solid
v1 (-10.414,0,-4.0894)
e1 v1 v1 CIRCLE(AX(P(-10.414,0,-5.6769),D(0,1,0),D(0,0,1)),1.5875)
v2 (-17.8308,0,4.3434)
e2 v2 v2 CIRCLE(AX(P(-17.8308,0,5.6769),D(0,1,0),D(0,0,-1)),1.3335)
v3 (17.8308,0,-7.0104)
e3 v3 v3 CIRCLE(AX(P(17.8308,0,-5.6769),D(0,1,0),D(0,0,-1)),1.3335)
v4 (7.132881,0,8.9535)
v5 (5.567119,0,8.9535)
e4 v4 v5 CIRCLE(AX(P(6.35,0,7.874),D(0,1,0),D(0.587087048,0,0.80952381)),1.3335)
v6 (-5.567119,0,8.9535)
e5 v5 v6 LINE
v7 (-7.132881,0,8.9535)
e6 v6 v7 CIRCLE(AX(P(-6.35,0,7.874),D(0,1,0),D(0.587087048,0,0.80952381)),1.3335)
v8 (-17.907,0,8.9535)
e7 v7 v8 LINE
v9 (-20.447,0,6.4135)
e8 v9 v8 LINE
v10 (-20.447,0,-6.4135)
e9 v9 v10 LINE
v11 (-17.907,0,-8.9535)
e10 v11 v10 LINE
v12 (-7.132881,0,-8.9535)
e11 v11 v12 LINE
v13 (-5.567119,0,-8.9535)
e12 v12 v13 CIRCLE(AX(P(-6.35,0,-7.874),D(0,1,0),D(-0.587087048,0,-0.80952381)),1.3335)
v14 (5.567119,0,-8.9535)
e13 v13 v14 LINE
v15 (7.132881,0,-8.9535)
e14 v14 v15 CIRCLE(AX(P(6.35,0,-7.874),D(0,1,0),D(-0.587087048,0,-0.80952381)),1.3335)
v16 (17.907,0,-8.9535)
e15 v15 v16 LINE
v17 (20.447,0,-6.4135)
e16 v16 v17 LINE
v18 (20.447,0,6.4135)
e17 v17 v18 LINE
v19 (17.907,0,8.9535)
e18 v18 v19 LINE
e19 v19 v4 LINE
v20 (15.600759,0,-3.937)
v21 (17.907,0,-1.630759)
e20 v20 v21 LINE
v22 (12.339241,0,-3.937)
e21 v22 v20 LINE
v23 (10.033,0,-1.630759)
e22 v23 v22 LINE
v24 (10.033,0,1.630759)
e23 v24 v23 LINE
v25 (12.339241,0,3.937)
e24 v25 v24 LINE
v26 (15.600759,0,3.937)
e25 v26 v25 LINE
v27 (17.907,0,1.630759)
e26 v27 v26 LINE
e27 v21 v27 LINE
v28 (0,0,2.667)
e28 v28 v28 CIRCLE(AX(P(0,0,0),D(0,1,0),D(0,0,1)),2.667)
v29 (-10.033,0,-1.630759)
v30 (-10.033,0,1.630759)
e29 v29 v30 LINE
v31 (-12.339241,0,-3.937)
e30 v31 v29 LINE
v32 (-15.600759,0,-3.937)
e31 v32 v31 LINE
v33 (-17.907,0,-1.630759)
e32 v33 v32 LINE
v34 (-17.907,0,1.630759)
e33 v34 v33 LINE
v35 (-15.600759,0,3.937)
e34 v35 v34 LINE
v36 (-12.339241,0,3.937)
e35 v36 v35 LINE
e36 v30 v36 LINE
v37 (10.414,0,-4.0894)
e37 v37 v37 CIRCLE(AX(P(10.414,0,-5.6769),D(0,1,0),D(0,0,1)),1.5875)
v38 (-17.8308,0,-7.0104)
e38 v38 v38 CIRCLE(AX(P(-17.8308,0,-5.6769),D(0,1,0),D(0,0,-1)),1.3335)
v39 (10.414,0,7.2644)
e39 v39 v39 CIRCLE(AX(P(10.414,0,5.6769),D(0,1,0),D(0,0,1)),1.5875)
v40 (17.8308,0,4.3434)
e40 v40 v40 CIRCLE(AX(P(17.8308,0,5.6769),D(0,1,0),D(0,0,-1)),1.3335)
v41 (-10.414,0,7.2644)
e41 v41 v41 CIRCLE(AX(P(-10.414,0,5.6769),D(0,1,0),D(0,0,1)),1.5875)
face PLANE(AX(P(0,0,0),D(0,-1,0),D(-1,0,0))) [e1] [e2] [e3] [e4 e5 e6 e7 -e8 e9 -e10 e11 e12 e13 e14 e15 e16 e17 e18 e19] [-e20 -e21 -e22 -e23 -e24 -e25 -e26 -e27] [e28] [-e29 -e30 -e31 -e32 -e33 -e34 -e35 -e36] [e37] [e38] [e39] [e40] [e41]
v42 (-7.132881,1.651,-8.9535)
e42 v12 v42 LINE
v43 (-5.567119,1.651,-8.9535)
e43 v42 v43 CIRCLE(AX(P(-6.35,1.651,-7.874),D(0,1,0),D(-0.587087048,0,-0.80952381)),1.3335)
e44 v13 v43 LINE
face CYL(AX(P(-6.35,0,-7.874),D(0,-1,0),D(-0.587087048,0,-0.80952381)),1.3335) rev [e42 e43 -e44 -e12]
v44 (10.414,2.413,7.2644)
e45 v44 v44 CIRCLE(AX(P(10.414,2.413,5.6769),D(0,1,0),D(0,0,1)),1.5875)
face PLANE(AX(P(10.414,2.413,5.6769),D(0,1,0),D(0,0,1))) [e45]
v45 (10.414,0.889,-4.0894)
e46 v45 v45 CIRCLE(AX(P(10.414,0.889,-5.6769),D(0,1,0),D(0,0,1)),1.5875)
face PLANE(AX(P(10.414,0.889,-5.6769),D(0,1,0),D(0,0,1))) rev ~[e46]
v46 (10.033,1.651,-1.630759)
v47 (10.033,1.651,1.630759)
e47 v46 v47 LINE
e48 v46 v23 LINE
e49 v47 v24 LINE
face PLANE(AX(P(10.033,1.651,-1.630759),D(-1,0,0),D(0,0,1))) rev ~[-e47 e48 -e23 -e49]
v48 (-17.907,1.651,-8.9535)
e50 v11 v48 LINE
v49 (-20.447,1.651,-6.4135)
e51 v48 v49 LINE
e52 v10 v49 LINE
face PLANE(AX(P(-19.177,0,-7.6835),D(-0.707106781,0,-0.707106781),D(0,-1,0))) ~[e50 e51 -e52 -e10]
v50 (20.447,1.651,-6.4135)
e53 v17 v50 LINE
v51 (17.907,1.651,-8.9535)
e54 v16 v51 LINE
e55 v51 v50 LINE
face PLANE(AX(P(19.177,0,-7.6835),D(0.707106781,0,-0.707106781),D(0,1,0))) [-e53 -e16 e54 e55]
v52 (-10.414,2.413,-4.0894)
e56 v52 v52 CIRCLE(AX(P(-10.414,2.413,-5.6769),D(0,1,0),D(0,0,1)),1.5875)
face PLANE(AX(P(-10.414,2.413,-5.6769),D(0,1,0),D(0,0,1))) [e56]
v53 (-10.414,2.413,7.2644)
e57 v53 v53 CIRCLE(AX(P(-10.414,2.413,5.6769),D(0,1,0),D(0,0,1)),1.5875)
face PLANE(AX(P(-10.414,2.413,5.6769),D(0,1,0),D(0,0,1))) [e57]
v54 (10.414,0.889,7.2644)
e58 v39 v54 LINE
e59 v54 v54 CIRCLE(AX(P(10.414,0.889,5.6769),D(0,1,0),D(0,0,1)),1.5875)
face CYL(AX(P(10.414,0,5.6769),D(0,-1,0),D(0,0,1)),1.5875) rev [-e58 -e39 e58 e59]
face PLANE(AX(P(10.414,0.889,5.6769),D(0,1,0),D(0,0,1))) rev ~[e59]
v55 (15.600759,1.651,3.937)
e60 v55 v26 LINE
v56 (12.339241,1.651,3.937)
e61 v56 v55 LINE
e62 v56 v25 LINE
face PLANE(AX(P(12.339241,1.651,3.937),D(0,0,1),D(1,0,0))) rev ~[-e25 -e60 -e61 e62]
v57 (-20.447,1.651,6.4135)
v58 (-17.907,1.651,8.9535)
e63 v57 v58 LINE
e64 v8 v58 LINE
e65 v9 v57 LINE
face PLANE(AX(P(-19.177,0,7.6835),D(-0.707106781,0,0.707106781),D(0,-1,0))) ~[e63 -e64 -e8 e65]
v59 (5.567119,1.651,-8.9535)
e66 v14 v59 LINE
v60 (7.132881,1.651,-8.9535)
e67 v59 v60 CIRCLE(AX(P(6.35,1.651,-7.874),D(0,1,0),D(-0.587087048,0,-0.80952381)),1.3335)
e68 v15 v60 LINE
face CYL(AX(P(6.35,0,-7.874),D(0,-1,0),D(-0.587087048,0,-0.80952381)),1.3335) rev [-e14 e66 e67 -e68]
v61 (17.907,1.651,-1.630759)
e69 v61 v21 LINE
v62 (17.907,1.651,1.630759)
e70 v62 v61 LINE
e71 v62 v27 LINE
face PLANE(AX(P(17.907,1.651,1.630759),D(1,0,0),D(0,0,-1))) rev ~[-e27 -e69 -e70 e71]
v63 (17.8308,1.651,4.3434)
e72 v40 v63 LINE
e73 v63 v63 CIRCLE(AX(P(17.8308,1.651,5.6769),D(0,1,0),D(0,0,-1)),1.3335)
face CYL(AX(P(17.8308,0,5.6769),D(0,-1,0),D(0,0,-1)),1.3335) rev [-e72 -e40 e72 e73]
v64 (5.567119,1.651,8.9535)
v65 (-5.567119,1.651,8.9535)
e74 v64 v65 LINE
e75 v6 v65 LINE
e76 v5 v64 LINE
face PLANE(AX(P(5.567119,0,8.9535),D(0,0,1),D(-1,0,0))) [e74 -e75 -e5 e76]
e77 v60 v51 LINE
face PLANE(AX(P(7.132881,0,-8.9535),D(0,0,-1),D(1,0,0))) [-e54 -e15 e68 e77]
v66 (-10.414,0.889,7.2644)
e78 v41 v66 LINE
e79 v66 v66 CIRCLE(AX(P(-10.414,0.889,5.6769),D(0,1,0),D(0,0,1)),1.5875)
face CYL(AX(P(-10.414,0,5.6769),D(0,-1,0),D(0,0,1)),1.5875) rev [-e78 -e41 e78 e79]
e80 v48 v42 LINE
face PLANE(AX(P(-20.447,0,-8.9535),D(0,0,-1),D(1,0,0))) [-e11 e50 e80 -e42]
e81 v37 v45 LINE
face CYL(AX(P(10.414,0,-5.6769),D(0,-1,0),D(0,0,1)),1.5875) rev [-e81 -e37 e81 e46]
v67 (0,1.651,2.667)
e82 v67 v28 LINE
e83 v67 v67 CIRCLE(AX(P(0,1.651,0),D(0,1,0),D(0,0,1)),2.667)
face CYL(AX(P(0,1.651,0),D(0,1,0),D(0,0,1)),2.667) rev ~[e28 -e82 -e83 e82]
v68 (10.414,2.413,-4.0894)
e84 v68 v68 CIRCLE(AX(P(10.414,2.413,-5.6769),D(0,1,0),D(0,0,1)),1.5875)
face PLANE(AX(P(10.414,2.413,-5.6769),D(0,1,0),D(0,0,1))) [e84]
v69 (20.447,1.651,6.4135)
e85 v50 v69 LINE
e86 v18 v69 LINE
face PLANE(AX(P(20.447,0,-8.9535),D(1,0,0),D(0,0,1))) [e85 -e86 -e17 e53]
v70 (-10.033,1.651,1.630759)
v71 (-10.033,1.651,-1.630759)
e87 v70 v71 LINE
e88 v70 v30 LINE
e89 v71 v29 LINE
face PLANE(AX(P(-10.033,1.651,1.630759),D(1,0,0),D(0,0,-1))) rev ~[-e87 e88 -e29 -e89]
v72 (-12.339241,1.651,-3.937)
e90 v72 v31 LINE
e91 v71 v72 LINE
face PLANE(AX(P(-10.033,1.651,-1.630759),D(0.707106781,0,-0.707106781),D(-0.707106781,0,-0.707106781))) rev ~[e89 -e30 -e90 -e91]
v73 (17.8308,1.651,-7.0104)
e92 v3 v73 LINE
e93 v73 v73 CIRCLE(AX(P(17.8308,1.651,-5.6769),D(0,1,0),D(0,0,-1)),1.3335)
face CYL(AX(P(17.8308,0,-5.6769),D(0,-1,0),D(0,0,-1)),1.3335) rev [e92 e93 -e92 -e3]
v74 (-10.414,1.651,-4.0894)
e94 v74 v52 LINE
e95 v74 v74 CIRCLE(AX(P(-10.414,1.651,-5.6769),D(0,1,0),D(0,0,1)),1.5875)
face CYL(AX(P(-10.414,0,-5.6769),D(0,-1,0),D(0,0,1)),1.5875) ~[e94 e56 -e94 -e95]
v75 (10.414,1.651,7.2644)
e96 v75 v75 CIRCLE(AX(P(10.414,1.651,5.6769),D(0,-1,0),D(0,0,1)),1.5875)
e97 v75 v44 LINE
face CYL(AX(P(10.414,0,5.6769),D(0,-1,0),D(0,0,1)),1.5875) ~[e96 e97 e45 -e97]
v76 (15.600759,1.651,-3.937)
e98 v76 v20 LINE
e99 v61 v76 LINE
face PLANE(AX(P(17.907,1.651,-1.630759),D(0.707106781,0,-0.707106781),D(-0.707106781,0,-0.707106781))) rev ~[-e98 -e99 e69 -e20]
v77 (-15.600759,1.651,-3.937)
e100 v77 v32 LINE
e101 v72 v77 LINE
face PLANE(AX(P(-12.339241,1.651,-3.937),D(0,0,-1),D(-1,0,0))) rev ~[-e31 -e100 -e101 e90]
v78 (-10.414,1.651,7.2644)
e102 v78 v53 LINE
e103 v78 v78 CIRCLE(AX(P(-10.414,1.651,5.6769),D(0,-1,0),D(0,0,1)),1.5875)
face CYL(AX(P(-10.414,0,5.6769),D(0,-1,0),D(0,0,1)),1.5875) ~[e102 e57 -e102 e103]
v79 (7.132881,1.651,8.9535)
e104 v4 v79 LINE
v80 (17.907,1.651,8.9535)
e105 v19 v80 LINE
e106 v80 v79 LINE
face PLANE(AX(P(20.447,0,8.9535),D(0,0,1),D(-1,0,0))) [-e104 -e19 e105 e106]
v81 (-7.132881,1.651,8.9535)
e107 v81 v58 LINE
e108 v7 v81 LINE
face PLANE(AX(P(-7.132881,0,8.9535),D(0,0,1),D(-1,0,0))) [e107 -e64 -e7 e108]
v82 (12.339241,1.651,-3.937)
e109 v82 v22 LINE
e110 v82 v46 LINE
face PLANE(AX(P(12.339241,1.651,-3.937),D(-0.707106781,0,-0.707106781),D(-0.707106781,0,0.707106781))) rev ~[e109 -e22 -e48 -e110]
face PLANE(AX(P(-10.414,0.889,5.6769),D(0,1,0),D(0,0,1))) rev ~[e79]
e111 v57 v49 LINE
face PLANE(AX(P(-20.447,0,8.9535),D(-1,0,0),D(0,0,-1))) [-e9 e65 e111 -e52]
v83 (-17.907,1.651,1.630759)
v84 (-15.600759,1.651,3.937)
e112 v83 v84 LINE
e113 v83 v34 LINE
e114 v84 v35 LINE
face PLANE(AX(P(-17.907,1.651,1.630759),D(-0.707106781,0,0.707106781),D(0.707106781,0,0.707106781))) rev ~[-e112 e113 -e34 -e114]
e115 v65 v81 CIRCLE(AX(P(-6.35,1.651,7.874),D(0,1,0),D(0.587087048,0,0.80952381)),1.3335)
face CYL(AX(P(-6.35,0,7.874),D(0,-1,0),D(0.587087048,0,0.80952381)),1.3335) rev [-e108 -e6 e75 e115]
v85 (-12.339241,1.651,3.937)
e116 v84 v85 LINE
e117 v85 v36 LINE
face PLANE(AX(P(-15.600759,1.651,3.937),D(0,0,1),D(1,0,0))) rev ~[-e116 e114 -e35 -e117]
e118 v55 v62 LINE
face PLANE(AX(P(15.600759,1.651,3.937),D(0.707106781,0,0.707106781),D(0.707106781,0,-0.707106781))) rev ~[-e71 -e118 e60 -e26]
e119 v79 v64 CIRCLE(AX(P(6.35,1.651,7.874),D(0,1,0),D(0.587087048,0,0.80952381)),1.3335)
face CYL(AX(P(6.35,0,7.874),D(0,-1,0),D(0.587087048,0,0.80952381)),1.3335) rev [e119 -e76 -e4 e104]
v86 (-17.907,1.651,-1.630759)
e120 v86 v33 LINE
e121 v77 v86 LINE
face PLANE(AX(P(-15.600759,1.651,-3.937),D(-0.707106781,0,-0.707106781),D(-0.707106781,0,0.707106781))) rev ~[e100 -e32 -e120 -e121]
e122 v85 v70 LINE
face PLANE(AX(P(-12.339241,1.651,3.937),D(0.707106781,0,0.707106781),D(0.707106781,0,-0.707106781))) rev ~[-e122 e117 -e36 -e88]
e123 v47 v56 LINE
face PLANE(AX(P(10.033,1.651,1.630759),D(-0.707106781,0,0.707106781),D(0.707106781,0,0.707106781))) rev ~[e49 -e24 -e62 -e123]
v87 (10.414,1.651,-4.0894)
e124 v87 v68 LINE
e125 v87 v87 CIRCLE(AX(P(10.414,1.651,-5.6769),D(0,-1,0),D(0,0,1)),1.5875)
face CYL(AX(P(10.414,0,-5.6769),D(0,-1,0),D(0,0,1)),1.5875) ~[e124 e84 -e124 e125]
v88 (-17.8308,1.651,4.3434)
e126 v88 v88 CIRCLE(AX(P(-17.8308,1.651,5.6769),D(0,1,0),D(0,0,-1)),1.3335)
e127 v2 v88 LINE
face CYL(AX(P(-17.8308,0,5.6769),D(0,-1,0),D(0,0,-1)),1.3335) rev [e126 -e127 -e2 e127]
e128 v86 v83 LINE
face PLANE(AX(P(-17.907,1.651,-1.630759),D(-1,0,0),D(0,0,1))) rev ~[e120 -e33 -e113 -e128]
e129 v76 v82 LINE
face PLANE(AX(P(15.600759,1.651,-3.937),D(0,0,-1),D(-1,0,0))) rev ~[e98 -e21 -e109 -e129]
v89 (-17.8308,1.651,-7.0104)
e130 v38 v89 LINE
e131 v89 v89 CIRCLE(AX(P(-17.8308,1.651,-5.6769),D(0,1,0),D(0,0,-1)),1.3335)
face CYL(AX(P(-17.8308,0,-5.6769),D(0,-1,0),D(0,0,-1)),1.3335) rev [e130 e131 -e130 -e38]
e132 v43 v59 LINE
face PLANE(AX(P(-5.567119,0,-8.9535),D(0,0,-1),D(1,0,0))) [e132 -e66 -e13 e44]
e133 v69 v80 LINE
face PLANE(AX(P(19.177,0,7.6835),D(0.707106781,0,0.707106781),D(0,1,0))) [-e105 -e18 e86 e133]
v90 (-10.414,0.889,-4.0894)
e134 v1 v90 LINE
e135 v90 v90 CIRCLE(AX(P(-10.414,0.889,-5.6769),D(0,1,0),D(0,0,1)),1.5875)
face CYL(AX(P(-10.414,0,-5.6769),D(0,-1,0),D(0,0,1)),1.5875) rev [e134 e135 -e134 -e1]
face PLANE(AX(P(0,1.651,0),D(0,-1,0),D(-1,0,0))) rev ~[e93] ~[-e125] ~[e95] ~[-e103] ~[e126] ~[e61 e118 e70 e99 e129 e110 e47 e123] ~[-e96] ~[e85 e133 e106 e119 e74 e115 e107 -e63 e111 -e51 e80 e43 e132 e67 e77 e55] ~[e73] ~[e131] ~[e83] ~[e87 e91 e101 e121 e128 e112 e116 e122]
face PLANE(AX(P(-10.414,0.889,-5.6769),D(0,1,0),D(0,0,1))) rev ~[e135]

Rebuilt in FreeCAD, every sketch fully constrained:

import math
import FreeCAD as App
import Part
import Sketcher
Q = App.Units.Quantity


def edges_at(feature, points):
    """Names of the edges that pass closest to the given points."""
    edges = feature.Shape.Edges
    near = lambda p: min(range(len(edges)), key=lambda i: edges[i].distToShape(Part.Vertex(*p))[0])
    return sorted({f"Edge{near(p) + 1}" for p in points})


def add_polygon(sketch, points):
    """Adds a closed chain of lines whose ends are joined by coincident constraints."""
    first, n = sketch.GeometryCount, len(points)
    for a, b in zip(points, points[1:] + points[:1]):
        sketch.addGeometry(Part.LineSegment(App.Vector(*a, 0), App.Vector(*b, 0)), False)
    for i in range(n):
        sketch.addConstraint(Sketcher.Constraint("Coincident", first + i, 2, first + (i + 1) % n, 1))

doc = App.newDocument("Part")
body = doc.addObject("PartDesign::Body", "Body")

sketch1 = body.newObject("Sketcher::SketchObject", "Sketch")
sketch1.AttachmentSupport = (doc.getObject("XZ_Plane"), [""])
sketch1.MapMode = "FlatFace"
sketch1.addGeometry([
    Part.LineSegment(App.Vector(5.6, -9, 0), App.Vector(-5.6, -9, 0)),
    Part.ArcOfCircle(Part.Circle(App.Vector(-6.3, -7.9, 0), App.Vector(0, 0, 1), 1.3), math.radians(-54), math.radians(234)),
    Part.LineSegment(App.Vector(-7.1, -9, 0), App.Vector(-20.4, -9, 0)),
    Part.LineSegment(App.Vector(-20.4, -9, 0), App.Vector(-20.4, 9, 0)),
    Part.LineSegment(App.Vector(-20.4, 9, 0), App.Vector(-7.1, 9, 0)),
    Part.ArcOfCircle(Part.Circle(App.Vector(-6.3, 7.9, 0), App.Vector(0, 0, 1), 1.3), math.radians(126), math.radians(414)),
    Part.LineSegment(App.Vector(-5.6, 9, 0), App.Vector(5.6, 9, 0)),
    Part.ArcOfCircle(Part.Circle(App.Vector(6.3, 7.9, 0), App.Vector(0, 0, 1), 1.3), math.radians(126), math.radians(414)),
    Part.LineSegment(App.Vector(7.1, 9, 0), App.Vector(20.4, 9, 0)),
    Part.LineSegment(App.Vector(20.4, 9, 0), App.Vector(20.4, -9, 0)),
    Part.LineSegment(App.Vector(20.4, -9, 0), App.Vector(7.1, -9, 0)),
    Part.ArcOfCircle(Part.Circle(App.Vector(6.3, -7.9, 0), App.Vector(0, 0, 1), 1.3), math.radians(-54), math.radians(234)),
    Part.Circle(App.Vector(17.8, 5.7, 0), App.Vector(0, 0, 1), 1.3),
    Part.Circle(App.Vector(10.4, 5.7, 0), App.Vector(0, 0, 1), 1.6),
    Part.Circle(App.Vector(-10.4, 5.7, 0), App.Vector(0, 0, 1), 1.6),
    Part.Circle(App.Vector(-17.8, 5.7, 0), App.Vector(0, 0, 1), 1.3),
    Part.Circle(App.Vector(17.8, -5.7, 0), App.Vector(0, 0, 1), 1.3),
    Part.Circle(App.Vector(10.4, -5.7, 0), App.Vector(0, 0, 1), 1.6),
    Part.Circle(App.Vector(-10.4, -5.7, 0), App.Vector(0, 0, 1), 1.6),
    Part.Circle(App.Vector(-17.8, -5.7, 0), App.Vector(0, 0, 1), 1.3),
], False)
sketch1.addConstraint([
    Sketcher.Constraint("Coincident", 0, 2, 1, 1),
    Sketcher.Constraint("Coincident", 1, 2, 2, 1),
    Sketcher.Constraint("Coincident", 2, 2, 3, 1),
    Sketcher.Constraint("Coincident", 3, 2, 4, 1),
    Sketcher.Constraint("Coincident", 4, 2, 5, 1),
    Sketcher.Constraint("Coincident", 5, 2, 6, 1),
    Sketcher.Constraint("Coincident", 6, 2, 7, 1),
    Sketcher.Constraint("Coincident", 7, 2, 8, 1),
    Sketcher.Constraint("Coincident", 8, 2, 9, 1),
    Sketcher.Constraint("Coincident", 9, 2, 10, 1),
    Sketcher.Constraint("Coincident", 10, 2, 11, 1),
    Sketcher.Constraint("Coincident", 11, 2, 0, 1),
    Sketcher.Constraint("Horizontal", 0),
    Sketcher.Constraint("Horizontal", 2),
    Sketcher.Constraint("Vertical", 3),
    Sketcher.Constraint("Horizontal", 4),
    Sketcher.Constraint("Horizontal", 6),
    Sketcher.Constraint("Horizontal", 8),
    Sketcher.Constraint("Vertical", 9),
    Sketcher.Constraint("Horizontal", 10),
    Sketcher.Constraint("Equal", 1, 5),
    Sketcher.Constraint("Equal", 5, 7),
    Sketcher.Constraint("Equal", 7, 11),
    Sketcher.Constraint("Equal", 11, 12),
    Sketcher.Constraint("Equal", 13, 14),
    Sketcher.Constraint("Equal", 12, 15),
    Sketcher.Constraint("Equal", 15, 16),
    Sketcher.Constraint("Equal", 14, 17),
    Sketcher.Constraint("Equal", 17, 18),
    Sketcher.Constraint("Equal", 16, 19),
    Sketcher.Constraint("Symmetric", 1, 3, 7, 3, -1, 1),
    Sketcher.Constraint("Symmetric", 5, 3, 11, 3, -1, 1),
    Sketcher.Constraint("Symmetric", 15, 3, 16, 3, -1, 1),
    Sketcher.Constraint("Symmetric", 14, 3, 17, 3, -1, 1),
    Sketcher.Constraint("Symmetric", 13, 3, 18, 3, -1, 1),
    Sketcher.Constraint("Symmetric", 12, 3, 19, 3, -1, 1),
    Sketcher.Constraint("Symmetric", 2, 2, 8, 2, -1, 1),
    Sketcher.Constraint("Symmetric", 5, 3, 7, 3, -2),
    Sketcher.Constraint("Symmetric", 13, 3, 14, 3, -2),
    Sketcher.Constraint("Symmetric", 12, 3, 15, 3, -2),
    Sketcher.Constraint("Horizontal", 12, 3, 13, 3),
    Sketcher.Constraint("Horizontal", 0, 2, 1, 2),
    Sketcher.Constraint("Horizontal", 4, 2, 5, 2),
    Sketcher.Constraint("Horizontal", 6, 2, 7, 2),
    Sketcher.Constraint("Horizontal", 2, 2, 9, 2),
    Sketcher.Constraint("Diameter", 12, Q("0.105 in")),
    Sketcher.Constraint("Diameter", 13, Q("0.125 in")),
    Sketcher.Constraint("DistanceX", 5, 3, 7, 3, Q("0.5 in")),
    Sketcher.Constraint("DistanceY", 3, 1, 3, 2, Q("0.705 in")),
    Sketcher.Constraint("DistanceY", 1, 3, -1, 1, Q("0.31 in")),
    Sketcher.Constraint("DistanceX", -1, 1, 13, 3, Q("0.41 in")),
    Sketcher.Constraint("DistanceX", -1, 1, 12, 3, Q("0.702 in")),
    Sketcher.Constraint("DistanceX", 2, 2, -1, 1, Q("0.805 in")),
    Sketcher.Constraint("DistanceY", 16, 3, 12, 3, Q("0.447 in")),
])
pad1 = body.newObject("PartDesign::Pad", "Pad")
pad1.Profile = sketch1
pad1.Length = Q("0.065 in")
pad1.Reversed = True
doc.recompute()

chamfer = body.newObject("PartDesign::Chamfer", "Chamfer")
chamfer.Base = (pad1, edges_at(pad1, [
    (20.447, 0.826, -8.954),
    (20.447, 0.826, 8.954),
    (-20.447, 0.826, 8.954),
    (-20.447, 0.826, -8.954),
]))
chamfer.Size = Q("0.1 in")

sketch2 = body.newObject("Sketcher::SketchObject", "Sketch001")
sketch2.AttachmentSupport = (doc.getObject("XZ_Plane"), [""])
sketch2.MapMode = "FlatFace"
sketch2.addGeometry([
    Part.Circle(App.Vector(-10.4, -5.7, 0), App.Vector(0, 0, 1), 1.6),
    Part.Circle(App.Vector(10.4, -5.7, 0), App.Vector(0, 0, 1), 1.6),
    Part.Circle(App.Vector(10.4, 5.7, 0), App.Vector(0, 0, 1), 1.6),
    Part.Circle(App.Vector(-10.4, 5.7, 0), App.Vector(0, 0, 1), 1.6),
], False)
sketch2.addConstraint([
    Sketcher.Constraint("Equal", 0, 1),
    Sketcher.Constraint("Equal", 1, 2),
    Sketcher.Constraint("Equal", 2, 3),
    Sketcher.Constraint("Symmetric", 0, 3, 2, 3, -1, 1),
    Sketcher.Constraint("Symmetric", 1, 3, 3, 3, -1, 1),
    Sketcher.Constraint("Symmetric", 0, 3, 1, 3, -2),
    Sketcher.Constraint("Diameter", 0, Q("0.125 in")),
    Sketcher.Constraint("DistanceX", 0, 3, -1, 1, Q("0.41 in")),
    Sketcher.Constraint("DistanceY", 1, 3, 2, 3, Q("0.447 in")),
])
pad2 = body.newObject("PartDesign::Pad", "Pad001")
pad2.Profile = sketch2
pad2.Length = Q("0.095 in")
pad2.Reversed = True

sketch3 = body.newObject("Sketcher::SketchObject", "Sketch002")
sketch3.AttachmentSupport = (doc.getObject("XZ_Plane"), [""])
sketch3.MapMode = "FlatFace"
sketch3.addGeometry([
    Part.Circle(App.Vector(-10.4, -5.7, 0), App.Vector(0, 0, 1), 1.6),
    Part.Circle(App.Vector(10.4, -5.7, 0), App.Vector(0, 0, 1), 1.6),
    Part.Circle(App.Vector(10.4, 5.7, 0), App.Vector(0, 0, 1), 1.6),
    Part.Circle(App.Vector(-10.4, 5.7, 0), App.Vector(0, 0, 1), 1.6),
], False)
sketch3.addConstraint([
    Sketcher.Constraint("Equal", 0, 1),
    Sketcher.Constraint("Equal", 1, 2),
    Sketcher.Constraint("Equal", 2, 3),
    Sketcher.Constraint("Symmetric", 0, 3, 2, 3, -1, 1),
    Sketcher.Constraint("Symmetric", 1, 3, 3, 3, -1, 1),
    Sketcher.Constraint("Symmetric", 0, 3, 1, 3, -2),
    Sketcher.Constraint("Diameter", 0, Q("0.125 in")),
    Sketcher.Constraint("DistanceX", 0, 3, -1, 1, Q("0.41 in")),
    Sketcher.Constraint("DistanceY", 1, 3, 2, 3, Q("0.447 in")),
])
pocket1 = body.newObject("PartDesign::Pocket", "Pocket")
pocket1.Profile = sketch3
pocket1.Length = Q("0.035 in")

sketch4 = body.newObject("Sketcher::SketchObject", "Sketch003")
sketch4.AttachmentSupport = (doc.getObject("XZ_Plane"), [""])
sketch4.MapMode = "FlatFace"
sketch4.AttachmentOffset = App.Placement(App.Vector(0, 0, -0.065 * 25.4), App.Rotation())
sketch4.addGeometry(Part.Circle(App.Vector(0, 0, 0), App.Vector(0, 0, 1), 2.7), False)
add_polygon(sketch4, [(-10, -1.6), (-12.3, -3.9), (-15.6, -3.9), (-17.9, -1.6), (-17.9, 1.6), (-15.6, 3.9), (-12.3, 3.9), (-10, 1.6)])
add_polygon(sketch4, [(17.9, -1.6), (15.6, -3.9), (12.3, -3.9), (10, -1.6), (10, 1.6), (12.3, 3.9), (15.6, 3.9), (17.9, 1.6)])
sketch4.addConstraint([
    Sketcher.Constraint("Horizontal", 2),
    Sketcher.Constraint("Vertical", 4),
    Sketcher.Constraint("Horizontal", 6),
    Sketcher.Constraint("Vertical", 8),
    Sketcher.Constraint("Horizontal", 10),
    Sketcher.Constraint("Vertical", 12),
    Sketcher.Constraint("Horizontal", 14),
    Sketcher.Constraint("Vertical", 16),
    Sketcher.Constraint("Coincident", 0, 3, -1, 1),
    Sketcher.Constraint("Symmetric", 5, 2, 9, 2, -1, 1),
    Sketcher.Constraint("Symmetric", 7, 2, 11, 2, -1, 1),
    Sketcher.Constraint("Symmetric", 1, 2, 13, 2, -1, 1),
    Sketcher.Constraint("Symmetric", 3, 2, 15, 2, -1, 1),
    Sketcher.Constraint("Symmetric", 2, 2, 9, 2, -2),
    Sketcher.Constraint("Perpendicular", 1, 3),
    Sketcher.Constraint("Perpendicular", 3, 5),
    Sketcher.Constraint("Perpendicular", 5, 7),
    Sketcher.Constraint("Perpendicular", 7, 9),
    Sketcher.Constraint("Perpendicular", 9, 11),
    Sketcher.Constraint("Perpendicular", 11, 13),
    Sketcher.Constraint("Perpendicular", 13, 15),
    Sketcher.Constraint("Horizontal", 4, 2, 7, 2),
    Sketcher.Constraint("Horizontal", 3, 2, 8, 2),
    Sketcher.Constraint("Horizontal", 8, 2, 11, 2),
    Sketcher.Constraint("Equal", 14, 4),
    Sketcher.Constraint("Diameter", 0, Q("0.21 in")),
    Sketcher.Constraint("DistanceX", 1, 2, 9, 2, Q("1.1 in")),
    Sketcher.Constraint("DistanceY", 2, 2, 5, 2, Q("0.31 in")),
    Sketcher.Constraint("DistanceX", 2, 2, 2, 1, 3.261518),
])
pocket2 = body.newObject("PartDesign::Pocket", "Pocket001")
pocket2.Profile = sketch4
pocket2.Type = "ThroughAll"
pocket2.Reversed = True

doc.recompute()
